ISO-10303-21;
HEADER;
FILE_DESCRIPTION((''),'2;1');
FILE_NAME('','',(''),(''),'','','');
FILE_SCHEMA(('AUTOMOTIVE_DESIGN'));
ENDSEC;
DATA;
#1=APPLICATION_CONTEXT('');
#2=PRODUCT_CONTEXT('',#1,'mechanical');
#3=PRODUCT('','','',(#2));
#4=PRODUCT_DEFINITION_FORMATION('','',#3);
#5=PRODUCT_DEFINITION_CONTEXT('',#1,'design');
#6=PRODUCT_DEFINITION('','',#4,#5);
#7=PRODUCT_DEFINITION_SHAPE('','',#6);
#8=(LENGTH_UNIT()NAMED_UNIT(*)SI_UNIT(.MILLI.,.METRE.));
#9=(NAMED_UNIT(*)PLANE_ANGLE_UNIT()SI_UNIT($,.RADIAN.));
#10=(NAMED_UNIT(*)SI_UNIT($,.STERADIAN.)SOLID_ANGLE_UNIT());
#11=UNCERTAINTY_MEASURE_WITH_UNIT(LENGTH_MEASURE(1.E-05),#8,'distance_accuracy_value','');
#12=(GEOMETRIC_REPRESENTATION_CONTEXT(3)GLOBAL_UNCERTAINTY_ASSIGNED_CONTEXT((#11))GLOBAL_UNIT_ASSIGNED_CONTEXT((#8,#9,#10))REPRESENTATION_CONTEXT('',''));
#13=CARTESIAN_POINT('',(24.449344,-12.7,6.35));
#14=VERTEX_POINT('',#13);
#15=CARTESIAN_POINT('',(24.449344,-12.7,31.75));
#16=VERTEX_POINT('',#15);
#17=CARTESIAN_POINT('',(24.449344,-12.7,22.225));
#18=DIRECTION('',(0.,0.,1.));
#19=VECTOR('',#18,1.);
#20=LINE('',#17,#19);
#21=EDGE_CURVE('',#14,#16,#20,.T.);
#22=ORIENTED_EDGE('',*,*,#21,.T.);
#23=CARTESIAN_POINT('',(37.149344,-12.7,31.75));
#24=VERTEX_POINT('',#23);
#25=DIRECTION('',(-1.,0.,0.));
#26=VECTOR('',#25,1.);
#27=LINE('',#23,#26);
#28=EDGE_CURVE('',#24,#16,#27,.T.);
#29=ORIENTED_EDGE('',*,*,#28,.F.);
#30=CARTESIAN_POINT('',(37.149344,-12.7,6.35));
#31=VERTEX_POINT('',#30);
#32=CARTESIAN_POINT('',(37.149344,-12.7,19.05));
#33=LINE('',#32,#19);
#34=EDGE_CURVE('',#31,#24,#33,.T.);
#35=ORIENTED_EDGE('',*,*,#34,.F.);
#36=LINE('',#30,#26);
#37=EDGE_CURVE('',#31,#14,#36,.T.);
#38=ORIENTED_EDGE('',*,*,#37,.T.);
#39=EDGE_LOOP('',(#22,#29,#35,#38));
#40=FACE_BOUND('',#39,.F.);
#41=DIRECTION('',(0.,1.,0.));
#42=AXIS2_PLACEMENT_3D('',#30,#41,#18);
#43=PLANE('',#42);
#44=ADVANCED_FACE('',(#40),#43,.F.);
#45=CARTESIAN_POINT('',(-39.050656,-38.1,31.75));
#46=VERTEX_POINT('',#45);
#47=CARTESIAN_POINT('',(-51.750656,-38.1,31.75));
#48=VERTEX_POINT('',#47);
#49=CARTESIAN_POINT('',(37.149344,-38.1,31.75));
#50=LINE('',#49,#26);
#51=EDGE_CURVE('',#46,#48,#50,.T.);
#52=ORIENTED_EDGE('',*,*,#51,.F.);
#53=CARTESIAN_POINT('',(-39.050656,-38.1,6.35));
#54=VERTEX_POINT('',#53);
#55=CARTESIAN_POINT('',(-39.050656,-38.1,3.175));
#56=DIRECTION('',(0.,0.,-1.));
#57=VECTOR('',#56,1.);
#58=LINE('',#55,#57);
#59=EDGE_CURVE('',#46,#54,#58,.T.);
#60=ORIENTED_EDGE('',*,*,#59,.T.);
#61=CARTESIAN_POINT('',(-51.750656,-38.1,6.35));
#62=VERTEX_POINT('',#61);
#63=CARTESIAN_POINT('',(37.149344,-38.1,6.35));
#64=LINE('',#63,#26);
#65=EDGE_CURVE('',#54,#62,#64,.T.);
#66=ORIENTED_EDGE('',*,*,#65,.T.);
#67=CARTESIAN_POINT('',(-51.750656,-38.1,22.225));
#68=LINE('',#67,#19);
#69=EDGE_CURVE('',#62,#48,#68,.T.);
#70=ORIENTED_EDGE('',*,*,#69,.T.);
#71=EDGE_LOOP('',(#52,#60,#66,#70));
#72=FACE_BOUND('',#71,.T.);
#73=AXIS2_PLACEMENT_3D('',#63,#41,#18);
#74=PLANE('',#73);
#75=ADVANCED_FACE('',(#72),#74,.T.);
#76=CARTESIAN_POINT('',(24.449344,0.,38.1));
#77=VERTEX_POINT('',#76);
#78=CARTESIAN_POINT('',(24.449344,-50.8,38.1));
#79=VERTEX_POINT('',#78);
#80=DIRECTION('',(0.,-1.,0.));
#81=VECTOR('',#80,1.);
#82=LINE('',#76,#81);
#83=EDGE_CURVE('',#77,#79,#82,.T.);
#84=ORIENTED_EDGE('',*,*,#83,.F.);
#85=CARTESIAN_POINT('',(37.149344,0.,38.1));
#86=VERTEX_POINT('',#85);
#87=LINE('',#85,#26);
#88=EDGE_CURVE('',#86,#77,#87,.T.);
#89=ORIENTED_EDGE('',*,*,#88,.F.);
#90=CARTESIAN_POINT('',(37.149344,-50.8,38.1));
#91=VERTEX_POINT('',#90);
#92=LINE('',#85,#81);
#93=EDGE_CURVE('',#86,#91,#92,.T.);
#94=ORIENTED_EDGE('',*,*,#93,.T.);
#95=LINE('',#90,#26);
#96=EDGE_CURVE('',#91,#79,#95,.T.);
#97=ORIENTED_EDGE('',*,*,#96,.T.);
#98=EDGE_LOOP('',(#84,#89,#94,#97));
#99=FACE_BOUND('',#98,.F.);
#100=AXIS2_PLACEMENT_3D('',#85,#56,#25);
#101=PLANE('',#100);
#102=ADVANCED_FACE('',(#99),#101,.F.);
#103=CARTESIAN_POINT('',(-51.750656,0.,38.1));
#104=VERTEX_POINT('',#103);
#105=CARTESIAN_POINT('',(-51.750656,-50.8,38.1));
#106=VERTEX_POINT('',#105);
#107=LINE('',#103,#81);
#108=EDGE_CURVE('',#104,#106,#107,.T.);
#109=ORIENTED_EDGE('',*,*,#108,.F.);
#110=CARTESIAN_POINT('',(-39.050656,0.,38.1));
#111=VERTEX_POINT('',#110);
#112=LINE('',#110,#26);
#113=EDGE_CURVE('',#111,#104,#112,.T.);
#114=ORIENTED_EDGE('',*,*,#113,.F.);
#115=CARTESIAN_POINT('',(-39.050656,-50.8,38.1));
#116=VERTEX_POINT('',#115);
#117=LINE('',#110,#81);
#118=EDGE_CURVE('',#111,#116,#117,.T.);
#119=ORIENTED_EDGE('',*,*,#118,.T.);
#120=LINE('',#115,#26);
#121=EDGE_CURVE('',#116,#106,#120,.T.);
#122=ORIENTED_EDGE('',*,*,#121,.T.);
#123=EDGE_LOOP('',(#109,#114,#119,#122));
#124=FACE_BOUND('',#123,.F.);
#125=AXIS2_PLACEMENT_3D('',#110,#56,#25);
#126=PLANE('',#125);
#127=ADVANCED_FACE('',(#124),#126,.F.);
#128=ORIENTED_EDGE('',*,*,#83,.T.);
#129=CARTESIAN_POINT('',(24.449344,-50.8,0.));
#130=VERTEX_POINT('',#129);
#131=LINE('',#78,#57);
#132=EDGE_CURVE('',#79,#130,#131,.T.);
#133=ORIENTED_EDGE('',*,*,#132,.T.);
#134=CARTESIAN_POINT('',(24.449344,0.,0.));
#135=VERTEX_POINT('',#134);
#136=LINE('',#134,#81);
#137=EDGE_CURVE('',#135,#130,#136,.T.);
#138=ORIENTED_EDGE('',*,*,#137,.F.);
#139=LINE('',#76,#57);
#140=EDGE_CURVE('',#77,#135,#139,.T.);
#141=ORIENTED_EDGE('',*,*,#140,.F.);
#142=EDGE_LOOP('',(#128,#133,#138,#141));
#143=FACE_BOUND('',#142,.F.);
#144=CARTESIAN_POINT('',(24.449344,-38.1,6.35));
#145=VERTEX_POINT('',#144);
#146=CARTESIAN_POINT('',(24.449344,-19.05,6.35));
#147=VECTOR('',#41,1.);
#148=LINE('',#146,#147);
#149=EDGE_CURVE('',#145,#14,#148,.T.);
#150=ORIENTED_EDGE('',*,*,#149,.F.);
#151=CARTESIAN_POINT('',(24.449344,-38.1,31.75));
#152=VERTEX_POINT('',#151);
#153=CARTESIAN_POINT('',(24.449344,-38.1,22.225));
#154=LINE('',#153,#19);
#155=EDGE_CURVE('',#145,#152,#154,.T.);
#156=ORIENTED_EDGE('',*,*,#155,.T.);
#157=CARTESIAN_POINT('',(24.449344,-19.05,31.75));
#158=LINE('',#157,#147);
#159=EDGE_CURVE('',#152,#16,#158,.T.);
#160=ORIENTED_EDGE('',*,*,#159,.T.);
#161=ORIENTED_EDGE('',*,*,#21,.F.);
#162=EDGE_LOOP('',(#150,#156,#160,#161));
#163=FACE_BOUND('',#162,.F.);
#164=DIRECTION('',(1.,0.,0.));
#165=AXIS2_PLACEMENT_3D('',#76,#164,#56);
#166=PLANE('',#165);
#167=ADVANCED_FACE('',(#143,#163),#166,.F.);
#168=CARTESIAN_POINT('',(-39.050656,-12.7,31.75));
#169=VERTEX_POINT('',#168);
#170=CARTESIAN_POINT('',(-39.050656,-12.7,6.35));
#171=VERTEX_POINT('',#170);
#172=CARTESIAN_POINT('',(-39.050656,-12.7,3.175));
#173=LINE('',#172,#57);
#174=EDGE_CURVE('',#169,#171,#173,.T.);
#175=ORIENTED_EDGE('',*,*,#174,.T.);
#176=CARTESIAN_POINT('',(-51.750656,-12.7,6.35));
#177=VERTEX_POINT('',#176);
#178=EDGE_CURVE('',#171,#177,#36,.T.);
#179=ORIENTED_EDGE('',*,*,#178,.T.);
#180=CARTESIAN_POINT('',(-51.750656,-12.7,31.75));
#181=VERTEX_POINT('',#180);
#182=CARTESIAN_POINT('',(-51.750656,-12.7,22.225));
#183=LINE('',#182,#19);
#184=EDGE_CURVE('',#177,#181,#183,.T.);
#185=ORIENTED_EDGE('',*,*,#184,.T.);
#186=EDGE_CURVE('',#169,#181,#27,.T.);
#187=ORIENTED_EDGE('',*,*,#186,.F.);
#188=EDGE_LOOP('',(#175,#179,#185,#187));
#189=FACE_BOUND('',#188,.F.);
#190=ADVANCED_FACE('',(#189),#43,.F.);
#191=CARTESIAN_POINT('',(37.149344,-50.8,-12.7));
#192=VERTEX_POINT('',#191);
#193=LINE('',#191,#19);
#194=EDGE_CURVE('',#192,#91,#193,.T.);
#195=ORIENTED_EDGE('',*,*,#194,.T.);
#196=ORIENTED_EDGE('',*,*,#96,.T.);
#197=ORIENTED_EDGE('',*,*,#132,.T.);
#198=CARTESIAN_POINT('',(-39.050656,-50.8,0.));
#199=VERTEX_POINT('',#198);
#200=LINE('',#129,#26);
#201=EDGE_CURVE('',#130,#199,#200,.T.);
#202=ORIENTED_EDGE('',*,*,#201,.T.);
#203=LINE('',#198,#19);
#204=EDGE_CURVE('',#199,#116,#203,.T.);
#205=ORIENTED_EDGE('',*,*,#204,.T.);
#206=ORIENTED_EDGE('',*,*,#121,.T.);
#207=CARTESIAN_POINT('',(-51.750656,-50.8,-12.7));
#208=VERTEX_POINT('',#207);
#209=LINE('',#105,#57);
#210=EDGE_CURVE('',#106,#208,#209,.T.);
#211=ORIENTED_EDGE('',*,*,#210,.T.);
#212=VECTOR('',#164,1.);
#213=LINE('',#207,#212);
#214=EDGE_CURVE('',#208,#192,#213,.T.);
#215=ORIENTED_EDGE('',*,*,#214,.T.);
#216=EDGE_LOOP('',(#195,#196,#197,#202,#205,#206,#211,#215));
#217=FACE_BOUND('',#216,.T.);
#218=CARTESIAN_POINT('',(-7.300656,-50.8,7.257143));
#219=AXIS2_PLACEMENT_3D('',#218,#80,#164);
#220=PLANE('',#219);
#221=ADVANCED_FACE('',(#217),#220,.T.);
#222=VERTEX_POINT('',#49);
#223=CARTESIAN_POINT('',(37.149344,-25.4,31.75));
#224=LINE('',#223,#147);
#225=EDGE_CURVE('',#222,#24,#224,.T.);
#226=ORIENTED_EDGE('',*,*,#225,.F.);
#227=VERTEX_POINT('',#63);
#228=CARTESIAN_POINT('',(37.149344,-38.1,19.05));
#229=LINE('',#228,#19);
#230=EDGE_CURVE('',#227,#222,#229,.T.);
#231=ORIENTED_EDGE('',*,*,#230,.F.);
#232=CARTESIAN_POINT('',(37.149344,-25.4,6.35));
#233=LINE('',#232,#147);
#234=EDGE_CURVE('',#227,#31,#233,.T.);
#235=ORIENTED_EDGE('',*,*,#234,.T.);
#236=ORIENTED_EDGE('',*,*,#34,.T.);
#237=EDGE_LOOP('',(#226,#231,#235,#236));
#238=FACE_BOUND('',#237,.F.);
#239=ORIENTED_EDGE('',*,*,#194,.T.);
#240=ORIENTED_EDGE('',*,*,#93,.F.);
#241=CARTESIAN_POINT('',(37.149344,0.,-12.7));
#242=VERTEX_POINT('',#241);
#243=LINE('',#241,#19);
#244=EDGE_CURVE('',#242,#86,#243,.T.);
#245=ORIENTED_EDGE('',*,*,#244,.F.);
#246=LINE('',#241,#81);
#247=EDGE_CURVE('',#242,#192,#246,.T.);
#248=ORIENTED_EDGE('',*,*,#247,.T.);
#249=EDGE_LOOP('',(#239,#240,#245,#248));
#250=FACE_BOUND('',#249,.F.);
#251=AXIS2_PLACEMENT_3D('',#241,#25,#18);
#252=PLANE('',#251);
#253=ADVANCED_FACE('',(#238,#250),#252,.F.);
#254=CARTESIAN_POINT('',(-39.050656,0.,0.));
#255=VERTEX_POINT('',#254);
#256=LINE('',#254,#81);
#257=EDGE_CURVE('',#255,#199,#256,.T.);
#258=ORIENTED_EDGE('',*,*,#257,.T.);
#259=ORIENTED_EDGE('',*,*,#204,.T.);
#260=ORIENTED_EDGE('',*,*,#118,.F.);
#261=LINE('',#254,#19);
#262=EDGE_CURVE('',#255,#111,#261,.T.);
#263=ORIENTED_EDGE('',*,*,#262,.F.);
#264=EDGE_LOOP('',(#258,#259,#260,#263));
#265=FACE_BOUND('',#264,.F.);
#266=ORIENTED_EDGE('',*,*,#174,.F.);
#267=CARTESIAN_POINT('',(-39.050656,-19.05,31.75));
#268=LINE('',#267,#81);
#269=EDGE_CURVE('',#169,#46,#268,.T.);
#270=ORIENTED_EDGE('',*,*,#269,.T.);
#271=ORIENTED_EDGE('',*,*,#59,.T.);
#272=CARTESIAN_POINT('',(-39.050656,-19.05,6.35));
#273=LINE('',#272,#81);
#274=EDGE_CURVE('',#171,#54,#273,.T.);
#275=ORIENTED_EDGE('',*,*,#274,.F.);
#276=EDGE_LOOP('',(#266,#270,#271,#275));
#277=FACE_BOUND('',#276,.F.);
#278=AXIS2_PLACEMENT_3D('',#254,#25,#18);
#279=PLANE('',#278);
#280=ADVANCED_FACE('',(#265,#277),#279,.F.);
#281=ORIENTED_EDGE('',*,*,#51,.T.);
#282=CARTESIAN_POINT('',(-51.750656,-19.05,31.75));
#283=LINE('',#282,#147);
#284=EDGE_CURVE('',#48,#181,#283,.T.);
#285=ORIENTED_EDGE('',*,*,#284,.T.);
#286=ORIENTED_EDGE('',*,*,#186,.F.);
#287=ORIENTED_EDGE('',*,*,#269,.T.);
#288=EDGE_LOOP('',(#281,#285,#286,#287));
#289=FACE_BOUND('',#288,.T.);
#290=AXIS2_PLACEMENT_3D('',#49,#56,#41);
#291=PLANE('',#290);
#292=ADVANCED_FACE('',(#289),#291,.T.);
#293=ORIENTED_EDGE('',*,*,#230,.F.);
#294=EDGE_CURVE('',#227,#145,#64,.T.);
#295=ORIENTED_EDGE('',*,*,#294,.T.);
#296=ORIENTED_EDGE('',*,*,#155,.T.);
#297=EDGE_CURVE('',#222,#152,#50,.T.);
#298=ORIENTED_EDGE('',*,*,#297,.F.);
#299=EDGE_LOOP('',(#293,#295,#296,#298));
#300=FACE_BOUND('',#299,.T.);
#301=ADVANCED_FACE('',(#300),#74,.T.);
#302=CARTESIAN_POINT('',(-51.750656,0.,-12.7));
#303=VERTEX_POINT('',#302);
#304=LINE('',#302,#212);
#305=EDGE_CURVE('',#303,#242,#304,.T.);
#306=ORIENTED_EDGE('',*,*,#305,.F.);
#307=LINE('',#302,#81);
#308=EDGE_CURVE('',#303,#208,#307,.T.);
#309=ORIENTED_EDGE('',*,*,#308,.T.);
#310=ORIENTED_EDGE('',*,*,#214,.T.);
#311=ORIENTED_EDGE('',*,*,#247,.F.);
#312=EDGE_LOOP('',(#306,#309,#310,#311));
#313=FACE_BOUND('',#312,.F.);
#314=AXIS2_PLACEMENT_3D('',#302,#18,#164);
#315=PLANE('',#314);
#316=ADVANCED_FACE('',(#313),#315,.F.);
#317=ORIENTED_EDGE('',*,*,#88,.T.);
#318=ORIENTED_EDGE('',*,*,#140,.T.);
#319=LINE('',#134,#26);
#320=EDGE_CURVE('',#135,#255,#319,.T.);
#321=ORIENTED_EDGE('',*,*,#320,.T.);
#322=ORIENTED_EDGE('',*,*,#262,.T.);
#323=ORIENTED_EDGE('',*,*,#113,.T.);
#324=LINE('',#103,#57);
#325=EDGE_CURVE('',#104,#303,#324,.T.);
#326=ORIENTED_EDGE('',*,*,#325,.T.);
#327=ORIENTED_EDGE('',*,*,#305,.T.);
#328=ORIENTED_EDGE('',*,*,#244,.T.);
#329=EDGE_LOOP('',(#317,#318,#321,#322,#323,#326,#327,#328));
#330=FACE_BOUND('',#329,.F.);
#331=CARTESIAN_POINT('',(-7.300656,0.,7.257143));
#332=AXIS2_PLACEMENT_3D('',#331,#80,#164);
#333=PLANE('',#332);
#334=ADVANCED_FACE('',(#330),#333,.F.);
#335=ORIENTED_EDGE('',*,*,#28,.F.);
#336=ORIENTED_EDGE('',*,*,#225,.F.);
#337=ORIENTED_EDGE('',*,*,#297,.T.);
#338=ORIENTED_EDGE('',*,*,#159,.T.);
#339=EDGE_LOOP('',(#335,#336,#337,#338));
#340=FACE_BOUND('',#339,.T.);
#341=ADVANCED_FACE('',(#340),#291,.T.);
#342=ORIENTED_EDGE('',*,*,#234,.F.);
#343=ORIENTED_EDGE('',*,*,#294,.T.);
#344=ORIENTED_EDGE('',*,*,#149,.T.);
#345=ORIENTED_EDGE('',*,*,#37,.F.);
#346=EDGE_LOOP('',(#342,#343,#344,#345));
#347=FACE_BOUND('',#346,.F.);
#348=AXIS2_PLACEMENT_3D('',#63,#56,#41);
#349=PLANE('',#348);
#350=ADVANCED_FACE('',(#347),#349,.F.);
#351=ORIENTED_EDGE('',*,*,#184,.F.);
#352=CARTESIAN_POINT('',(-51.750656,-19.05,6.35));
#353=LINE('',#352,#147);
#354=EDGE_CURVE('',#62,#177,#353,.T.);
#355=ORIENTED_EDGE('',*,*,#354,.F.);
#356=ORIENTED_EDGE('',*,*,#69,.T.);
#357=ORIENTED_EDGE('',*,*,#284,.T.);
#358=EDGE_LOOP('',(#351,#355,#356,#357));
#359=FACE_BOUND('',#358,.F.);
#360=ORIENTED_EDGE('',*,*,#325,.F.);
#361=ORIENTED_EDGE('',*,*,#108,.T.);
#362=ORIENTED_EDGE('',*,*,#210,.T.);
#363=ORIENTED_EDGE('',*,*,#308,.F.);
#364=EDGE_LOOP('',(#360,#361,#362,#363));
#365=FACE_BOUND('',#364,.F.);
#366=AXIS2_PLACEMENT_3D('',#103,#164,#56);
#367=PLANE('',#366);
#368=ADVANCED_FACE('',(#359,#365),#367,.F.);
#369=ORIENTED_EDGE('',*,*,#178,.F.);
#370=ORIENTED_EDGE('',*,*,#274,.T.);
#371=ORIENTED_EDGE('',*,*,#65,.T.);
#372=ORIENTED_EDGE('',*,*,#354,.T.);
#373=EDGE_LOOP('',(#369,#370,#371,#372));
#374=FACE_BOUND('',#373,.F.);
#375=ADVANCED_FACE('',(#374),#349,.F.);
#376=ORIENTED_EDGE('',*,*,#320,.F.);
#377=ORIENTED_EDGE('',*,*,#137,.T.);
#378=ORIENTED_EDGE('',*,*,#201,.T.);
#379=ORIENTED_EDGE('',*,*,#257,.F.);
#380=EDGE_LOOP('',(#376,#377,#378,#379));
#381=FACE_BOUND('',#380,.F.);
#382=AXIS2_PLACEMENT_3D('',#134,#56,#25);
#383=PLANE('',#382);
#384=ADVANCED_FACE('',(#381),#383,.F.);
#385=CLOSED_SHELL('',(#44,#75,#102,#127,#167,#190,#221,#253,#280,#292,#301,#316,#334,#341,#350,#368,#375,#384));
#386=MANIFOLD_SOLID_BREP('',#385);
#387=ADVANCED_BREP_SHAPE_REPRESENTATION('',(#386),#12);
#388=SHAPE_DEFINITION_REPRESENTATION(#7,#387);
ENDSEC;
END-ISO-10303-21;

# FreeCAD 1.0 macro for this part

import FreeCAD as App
import Part
import Sketcher

V = App.Vector
Q = App.Units.Quantity


def add_polygon(sketch, points):
    """Adds a closed chain of lines whose ends are joined by coincident constraints."""
    first, n = sketch.GeometryCount, len(points)
    for a, b in zip(points, points[1:] + points[:1]):
        sketch.addGeometry(Part.LineSegment(App.Vector(*a, 0), App.Vector(*b, 0)), False)
    for i in range(n):
        sketch.addConstraint(Sketcher.Constraint("Coincident", first + i, 2, first + (i + 1) % n, 1))

doc = App.newDocument("Part")
params = doc.addObject("Spreadsheet::Sheet", "Params")
for row, (alias, value) in enumerate([
    ("sketch1_height", "2 in"),
    ("sketch1_width", "0.5 in"),
    ("sketch1_width2", "3.5 in"),
    ("sketch1_height2", "1.5 in"),
    ("pad1_length", "2 in"),
    ("sketch2_width", "1 in"),
], start=1):
    params.set(f"A{row}", alias)
    params.set(f"B{row}", "=" + value)
    params.setAlias(f"B{row}", alias)

body = doc.addObject("PartDesign::Body", "Body")

# Sketch on XZ plane
sketch1 = doc.addObject("Sketcher::SketchObject", "Sketch")
body.addObject(sketch1)
sketch1.AttachmentSupport = (doc.XZ_Plane, [""])
sketch1.MapMode = "FlatFace"
add_polygon(sketch1, [(-39, 38), (-52, 38), (-52, -13), (37, -13), (37, 38), (24, 38), (24, 0), (-39, 0)])  # lines 0-7
sketch1.addConstraint(Sketcher.Constraint("Horizontal", 0))
sketch1.addConstraint(Sketcher.Constraint("Vertical", 1))
sketch1.addConstraint(Sketcher.Constraint("Horizontal", 2))
sketch1.addConstraint(Sketcher.Constraint("Vertical", 3))
sketch1.addConstraint(Sketcher.Constraint("Horizontal", 4))
sketch1.addConstraint(Sketcher.Constraint("Vertical", 5))
sketch1.addConstraint(Sketcher.Constraint("Horizontal", 6))
sketch1.addConstraint(Sketcher.Constraint("Vertical", 7))
sketch1.addConstraint(Sketcher.Constraint("PointOnObject", 5, 2, -1))
sketch1.addConstraint(Sketcher.Constraint("Horizontal", 0, 2, 3, 2))
sketch1.addConstraint(Sketcher.Constraint("Equal", 0, 4))
sketch1.addConstraint(Sketcher.Constraint("DistanceY", 1, 2, 1, 1, Q("2 in")))
sketch1.addConstraint(Sketcher.Constraint("DistanceX", 0, 2, 0, 1, Q("0.5 in")))
sketch1.addConstraint(Sketcher.Constraint("DistanceX", 2, 1, 2, 2, Q("3.5 in")))
sketch1.addConstraint(Sketcher.Constraint("DistanceY", 5, 2, 5, 1, Q("1.5 in")))
sketch1.addConstraint(Sketcher.Constraint("DistanceX", 0, 2, -1, 1, Q("51.750656 mm")))
sketch1.setExpression("Constraints[19]", "Params.sketch1_height")
sketch1.setExpression("Constraints[20]", "Params.sketch1_width")
sketch1.setExpression("Constraints[21]", "Params.sketch1_width2")
sketch1.setExpression("Constraints[22]", "Params.sketch1_height2")
pad1 = doc.addObject("PartDesign::Pad", "Pad")
body.addObject(pad1)
pad1.Profile = sketch1
pad1.setExpression("Length", "Params.pad1_length")

# Sketch on YZ plane
sketch2 = doc.addObject("Sketcher::SketchObject", "Sketch001")
body.addObject(sketch2)
sketch2.AttachmentSupport = (doc.YZ_Plane, [""])
sketch2.MapMode = "FlatFace"
sketch2.AttachmentOffset = App.Placement(V(0, 0, 37.149344), App.Rotation())
add_polygon(sketch2, [(-38, 32), (-38, 6), (-13, 6), (-13, 32)])  # lines 0-3
sketch2.addConstraint(Sketcher.Constraint("Vertical", 0))
sketch2.addConstraint(Sketcher.Constraint("Horizontal", 1))
sketch2.addConstraint(Sketcher.Constraint("Vertical", 2))
sketch2.addConstraint(Sketcher.Constraint("Horizontal", 3))
sketch2.addConstraint(Sketcher.Constraint("Equal", 3, 0))
sketch2.addConstraint(Sketcher.Constraint("DistanceX", 1, 1, 1, 2, Q("1 in")))
sketch2.addConstraint(Sketcher.Constraint("DistanceX", 0, 2, -1, 1, Q("1.5 in")))
sketch2.addConstraint(Sketcher.Constraint("DistanceY", -1, 1, 0, 2, Q("0.25 in")))
sketch2.setExpression("Constraints[9]", "Params.sketch2_width")
pocket1 = doc.addObject("PartDesign::Pocket", "Pocket")
body.addObject(pocket1)
pocket1.Profile = sketch2
pocket1.Type = "ThroughAll"

doc.recompute()
